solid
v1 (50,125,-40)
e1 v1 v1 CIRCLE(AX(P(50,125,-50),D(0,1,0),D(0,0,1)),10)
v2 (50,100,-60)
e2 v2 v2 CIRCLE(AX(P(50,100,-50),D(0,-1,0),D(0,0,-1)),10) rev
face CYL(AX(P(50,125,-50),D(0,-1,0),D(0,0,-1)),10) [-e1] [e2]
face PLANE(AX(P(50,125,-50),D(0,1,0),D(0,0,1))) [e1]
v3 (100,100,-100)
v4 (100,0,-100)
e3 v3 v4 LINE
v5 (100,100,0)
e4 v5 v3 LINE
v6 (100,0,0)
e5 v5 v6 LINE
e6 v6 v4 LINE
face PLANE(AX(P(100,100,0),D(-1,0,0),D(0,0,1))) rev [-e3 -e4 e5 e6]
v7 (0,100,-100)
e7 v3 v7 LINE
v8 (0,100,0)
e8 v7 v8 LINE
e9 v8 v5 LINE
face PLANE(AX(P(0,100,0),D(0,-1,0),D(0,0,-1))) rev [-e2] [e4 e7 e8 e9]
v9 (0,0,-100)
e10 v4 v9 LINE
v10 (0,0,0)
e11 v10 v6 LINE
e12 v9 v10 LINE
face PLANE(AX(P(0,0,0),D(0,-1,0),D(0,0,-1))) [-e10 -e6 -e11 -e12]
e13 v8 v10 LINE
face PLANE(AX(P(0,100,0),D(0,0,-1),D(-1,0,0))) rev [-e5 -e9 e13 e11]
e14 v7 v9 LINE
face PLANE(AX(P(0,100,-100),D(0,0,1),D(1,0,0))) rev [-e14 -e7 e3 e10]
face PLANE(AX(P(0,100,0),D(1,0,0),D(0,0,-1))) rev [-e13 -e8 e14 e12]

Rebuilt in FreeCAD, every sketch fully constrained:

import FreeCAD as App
import Part
import Sketcher

V = App.Vector
Q = App.Units.Quantity


def add_polygon(sketch, points):
    """Adds a closed chain of lines whose ends are joined by coincident constraints."""
    first, n = sketch.GeometryCount, len(points)
    for a, b in zip(points, points[1:] + points[:1]):
        sketch.addGeometry(Part.LineSegment(App.Vector(*a, 0), App.Vector(*b, 0)), False)
    for i in range(n):
        sketch.addConstraint(Sketcher.Constraint("Coincident", first + i, 2, first + (i + 1) % n, 1))

doc = App.newDocument("Part")
params = doc.addObject("Spreadsheet::Sheet", "Params")
for row, (alias, value) in enumerate([
    ("sketch1_width", "100 mm"),
    ("pad1_length", "100 mm"),
    ("sketch2_diameter", "20 mm"),
    ("pad2_length", "25 mm"),
], start=1):
    params.set(f"A{row}", alias)
    params.set(f"B{row}", "=" + value)
    params.setAlias(f"B{row}", alias)

body = doc.addObject("PartDesign::Body", "Body")

# Sketch on XZ plane
sketch1 = body.newObject("Sketcher::SketchObject", "Sketch")
sketch1.AttachmentSupport = (doc.getObject("XZ_Plane"), [""])
sketch1.MapMode = "FlatFace"
add_polygon(sketch1, [(0, -100), (0, 0), (100, 0), (100, -100)])  # lines 0-3
sketch1.addConstraint([
    Sketcher.Constraint("Vertical", 0),
    Sketcher.Constraint("Horizontal", 1),
    Sketcher.Constraint("Vertical", 2),
    Sketcher.Constraint("Horizontal", 3),
    Sketcher.Constraint("Coincident", 0, 2, -1, 1),
    Sketcher.Constraint("Equal", 3, 0),
    Sketcher.Constraint("DistanceX", 1, 1, 1, 2, Q("100 mm")),
])
sketch1.setExpression("Constraints[10]", "Params.sketch1_width")
pad1 = body.newObject("PartDesign::Pad", "Pad")
pad1.Profile = sketch1
pad1.setExpression("Length", "Params.pad1_length")
pad1.Reversed = True

# Sketch on XZ plane
sketch2 = body.newObject("Sketcher::SketchObject", "Sketch001")
sketch2.AttachmentSupport = (doc.getObject("XZ_Plane"), [""])
sketch2.MapMode = "FlatFace"
sketch2.AttachmentOffset = App.Placement(V(0, 0, -100), App.Rotation())
sketch2.addGeometry(Part.Circle(V(50, -50, 0), V(0, 0, 1), 10), False)
sketch2.addConstraint([
    Sketcher.Constraint("Diameter", 0, Q("20 mm")),
    Sketcher.Constraint("DistanceX", -1, 1, 0, 3, Q("50 mm")),
    Sketcher.Constraint("DistanceY", 0, 3, -1, 1, Q("50 mm")),
])
sketch2.setExpression("Constraints[0]", "Params.sketch2_diameter")
pad2 = body.newObject("PartDesign::Pad", "Pad001")
pad2.Profile = sketch2
pad2.setExpression("Length", "Params.pad2_length")
pad2.Reversed = True

doc.recompute()
